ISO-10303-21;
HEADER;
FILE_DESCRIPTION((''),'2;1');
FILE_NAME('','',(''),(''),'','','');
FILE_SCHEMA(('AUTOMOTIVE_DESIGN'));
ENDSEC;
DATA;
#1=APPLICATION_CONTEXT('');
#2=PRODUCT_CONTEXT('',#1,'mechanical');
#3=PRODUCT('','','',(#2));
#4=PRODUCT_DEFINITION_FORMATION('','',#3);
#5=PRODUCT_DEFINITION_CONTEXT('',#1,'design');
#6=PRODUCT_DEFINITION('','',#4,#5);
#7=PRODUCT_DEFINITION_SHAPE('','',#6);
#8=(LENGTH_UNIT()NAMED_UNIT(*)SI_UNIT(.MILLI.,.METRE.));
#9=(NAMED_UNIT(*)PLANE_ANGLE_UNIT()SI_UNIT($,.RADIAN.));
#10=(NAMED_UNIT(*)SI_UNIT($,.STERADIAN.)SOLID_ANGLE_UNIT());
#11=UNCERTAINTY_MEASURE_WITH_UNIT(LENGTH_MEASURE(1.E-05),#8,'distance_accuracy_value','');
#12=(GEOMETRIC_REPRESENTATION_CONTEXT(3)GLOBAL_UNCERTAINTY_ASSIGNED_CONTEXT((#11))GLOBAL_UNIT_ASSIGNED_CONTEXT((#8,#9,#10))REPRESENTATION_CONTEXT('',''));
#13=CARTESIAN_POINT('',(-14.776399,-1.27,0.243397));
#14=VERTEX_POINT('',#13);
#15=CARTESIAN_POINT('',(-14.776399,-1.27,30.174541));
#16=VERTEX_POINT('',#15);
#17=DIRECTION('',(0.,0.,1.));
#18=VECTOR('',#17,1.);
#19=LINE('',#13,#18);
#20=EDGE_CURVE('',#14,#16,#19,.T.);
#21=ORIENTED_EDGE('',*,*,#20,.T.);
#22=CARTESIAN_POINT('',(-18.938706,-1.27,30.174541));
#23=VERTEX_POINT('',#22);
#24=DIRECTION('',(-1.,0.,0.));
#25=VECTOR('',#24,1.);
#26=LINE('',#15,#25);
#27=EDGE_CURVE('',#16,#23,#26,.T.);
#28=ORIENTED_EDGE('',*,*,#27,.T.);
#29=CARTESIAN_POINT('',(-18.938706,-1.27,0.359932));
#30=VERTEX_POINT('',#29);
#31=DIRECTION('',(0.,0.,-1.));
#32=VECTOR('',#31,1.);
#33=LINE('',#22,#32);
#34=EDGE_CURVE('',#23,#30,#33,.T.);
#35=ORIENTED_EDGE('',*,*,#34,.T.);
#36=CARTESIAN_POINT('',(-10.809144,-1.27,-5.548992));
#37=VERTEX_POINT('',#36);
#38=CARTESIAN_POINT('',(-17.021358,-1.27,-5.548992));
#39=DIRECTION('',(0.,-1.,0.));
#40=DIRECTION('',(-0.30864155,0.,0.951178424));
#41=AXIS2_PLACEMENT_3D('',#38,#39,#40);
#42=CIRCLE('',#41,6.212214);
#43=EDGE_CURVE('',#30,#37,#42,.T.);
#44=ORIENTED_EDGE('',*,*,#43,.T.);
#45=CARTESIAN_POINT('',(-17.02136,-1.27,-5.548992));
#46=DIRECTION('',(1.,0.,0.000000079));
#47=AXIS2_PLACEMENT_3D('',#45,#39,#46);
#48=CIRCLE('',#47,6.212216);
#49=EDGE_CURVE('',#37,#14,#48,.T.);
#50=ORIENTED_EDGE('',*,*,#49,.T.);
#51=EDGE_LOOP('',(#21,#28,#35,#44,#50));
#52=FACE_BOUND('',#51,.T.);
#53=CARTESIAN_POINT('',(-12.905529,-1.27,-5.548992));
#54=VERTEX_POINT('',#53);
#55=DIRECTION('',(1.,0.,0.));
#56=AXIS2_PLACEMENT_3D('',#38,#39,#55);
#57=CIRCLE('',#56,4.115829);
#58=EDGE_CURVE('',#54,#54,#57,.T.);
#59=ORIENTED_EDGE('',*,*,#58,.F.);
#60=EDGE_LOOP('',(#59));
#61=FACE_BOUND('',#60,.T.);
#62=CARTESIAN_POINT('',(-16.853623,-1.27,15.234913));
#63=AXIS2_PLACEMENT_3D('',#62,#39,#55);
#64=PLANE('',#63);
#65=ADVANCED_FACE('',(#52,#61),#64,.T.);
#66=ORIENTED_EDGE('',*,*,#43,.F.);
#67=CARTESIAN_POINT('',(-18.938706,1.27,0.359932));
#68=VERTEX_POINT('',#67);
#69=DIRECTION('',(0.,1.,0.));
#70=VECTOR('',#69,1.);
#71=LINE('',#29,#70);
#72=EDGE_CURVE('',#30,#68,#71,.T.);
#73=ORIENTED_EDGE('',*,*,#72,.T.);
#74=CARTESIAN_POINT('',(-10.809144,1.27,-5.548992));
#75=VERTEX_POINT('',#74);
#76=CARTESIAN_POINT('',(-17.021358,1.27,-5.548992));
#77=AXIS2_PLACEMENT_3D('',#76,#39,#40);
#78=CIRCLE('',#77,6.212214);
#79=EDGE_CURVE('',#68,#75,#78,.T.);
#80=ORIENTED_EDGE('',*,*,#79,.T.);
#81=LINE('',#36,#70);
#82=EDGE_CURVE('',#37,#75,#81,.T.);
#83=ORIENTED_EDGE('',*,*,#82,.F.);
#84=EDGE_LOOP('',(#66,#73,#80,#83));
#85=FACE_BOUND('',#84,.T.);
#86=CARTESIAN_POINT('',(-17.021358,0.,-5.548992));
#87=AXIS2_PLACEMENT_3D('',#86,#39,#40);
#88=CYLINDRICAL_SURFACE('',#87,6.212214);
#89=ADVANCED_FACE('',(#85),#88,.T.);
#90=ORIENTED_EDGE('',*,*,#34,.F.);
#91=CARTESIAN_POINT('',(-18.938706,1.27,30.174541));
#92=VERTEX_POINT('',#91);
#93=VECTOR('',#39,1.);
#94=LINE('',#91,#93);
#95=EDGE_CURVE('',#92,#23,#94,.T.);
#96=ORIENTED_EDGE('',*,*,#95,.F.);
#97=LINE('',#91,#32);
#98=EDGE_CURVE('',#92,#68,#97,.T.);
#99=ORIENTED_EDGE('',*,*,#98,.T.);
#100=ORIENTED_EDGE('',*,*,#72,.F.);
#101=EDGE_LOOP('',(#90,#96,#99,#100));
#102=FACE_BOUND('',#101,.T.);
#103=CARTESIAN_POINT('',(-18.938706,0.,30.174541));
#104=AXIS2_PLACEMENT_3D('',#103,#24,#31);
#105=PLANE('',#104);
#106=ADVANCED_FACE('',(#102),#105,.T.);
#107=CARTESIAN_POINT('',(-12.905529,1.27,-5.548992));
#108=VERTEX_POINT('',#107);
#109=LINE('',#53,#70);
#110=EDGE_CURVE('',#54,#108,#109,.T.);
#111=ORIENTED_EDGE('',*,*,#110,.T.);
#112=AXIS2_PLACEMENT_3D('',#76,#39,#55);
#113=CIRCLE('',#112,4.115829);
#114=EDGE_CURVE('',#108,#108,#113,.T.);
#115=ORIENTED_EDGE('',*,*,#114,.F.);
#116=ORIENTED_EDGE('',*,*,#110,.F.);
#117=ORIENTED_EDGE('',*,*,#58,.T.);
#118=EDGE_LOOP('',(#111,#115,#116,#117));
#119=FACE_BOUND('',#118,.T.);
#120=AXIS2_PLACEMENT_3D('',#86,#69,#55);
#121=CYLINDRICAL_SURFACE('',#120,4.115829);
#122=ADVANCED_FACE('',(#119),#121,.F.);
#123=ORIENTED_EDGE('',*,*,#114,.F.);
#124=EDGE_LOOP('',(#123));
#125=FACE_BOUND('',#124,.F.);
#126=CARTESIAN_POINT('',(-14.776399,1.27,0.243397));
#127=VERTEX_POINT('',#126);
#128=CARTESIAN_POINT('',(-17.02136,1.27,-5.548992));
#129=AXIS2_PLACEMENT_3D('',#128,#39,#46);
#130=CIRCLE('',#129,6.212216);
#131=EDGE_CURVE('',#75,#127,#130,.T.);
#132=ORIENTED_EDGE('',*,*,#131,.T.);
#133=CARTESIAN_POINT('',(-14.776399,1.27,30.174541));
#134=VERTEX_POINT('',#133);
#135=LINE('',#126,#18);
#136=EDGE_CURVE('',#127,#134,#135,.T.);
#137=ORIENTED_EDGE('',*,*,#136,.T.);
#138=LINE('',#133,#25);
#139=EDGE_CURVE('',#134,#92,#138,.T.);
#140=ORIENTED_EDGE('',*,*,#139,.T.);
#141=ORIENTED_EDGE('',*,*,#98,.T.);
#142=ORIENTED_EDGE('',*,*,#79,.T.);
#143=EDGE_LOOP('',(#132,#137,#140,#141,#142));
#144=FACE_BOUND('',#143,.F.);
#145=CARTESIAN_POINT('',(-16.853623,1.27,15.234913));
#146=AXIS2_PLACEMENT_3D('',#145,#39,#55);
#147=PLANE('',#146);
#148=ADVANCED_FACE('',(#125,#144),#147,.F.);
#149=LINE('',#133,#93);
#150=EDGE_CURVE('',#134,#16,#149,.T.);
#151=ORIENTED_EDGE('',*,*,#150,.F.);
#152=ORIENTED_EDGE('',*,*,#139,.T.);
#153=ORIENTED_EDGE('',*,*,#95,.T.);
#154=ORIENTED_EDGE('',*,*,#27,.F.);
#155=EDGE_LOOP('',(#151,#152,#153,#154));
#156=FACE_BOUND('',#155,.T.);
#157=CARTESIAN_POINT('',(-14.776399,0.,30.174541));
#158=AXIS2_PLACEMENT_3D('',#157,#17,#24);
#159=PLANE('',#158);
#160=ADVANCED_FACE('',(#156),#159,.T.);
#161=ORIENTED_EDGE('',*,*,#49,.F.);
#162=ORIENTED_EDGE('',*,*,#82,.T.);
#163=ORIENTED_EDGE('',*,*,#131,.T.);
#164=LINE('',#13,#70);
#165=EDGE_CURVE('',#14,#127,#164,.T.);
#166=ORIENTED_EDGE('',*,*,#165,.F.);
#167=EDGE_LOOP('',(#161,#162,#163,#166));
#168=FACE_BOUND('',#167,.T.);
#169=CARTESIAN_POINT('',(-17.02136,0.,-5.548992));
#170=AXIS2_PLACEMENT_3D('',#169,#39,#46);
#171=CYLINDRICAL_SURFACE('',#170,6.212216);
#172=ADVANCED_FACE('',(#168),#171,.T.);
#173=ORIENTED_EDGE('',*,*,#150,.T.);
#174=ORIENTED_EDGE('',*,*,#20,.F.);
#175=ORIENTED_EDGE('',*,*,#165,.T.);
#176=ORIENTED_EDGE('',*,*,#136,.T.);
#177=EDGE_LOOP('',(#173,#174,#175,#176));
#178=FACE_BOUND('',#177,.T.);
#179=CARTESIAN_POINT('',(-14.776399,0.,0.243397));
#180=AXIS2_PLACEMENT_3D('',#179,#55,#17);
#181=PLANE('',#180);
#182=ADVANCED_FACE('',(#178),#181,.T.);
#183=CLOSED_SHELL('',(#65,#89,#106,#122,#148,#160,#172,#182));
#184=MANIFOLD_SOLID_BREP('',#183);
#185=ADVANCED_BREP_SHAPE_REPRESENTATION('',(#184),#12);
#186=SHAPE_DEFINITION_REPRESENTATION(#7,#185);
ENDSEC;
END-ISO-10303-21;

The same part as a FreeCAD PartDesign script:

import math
import FreeCAD as App
import Part
import Sketcher
from FreeCAD import Vector
Q = App.Units.Quantity

doc = App.newDocument("Part")
body = doc.addObject("PartDesign::Body", "Body")

# Sketch on XZ plane
sketch1 = body.newObject("Sketcher::SketchObject", "Sketch")
sketch1.AttachmentSupport = (doc.getObject("XZ_Plane"), [""])
sketch1.MapMode = "FlatFace"
sketch1.addGeometry(Part.LineSegment(Vector(-14.8, 0.2, 0), Vector(-14.8, 30.2, 0)), False)
sketch1.addGeometry(Part.LineSegment(Vector(-14.8, 30.2, 0), Vector(-18.9, 30.2, 0)), False)
sketch1.addGeometry(Part.LineSegment(Vector(-18.9, 30.2, 0), Vector(-18.9, 0.4, 0)), False)
sketch1.addGeometry(Part.ArcOfCircle(Part.Circle(Vector(-17, -5.5, 0), Vector(0, 0, 1), 6.2), math.radians(108), math.radians(360)), False)
sketch1.addGeometry(Part.ArcOfCircle(Part.Circle(Vector(-17, -5.5, 0), Vector(0, 0, 1), 6.2), math.radians(0), math.radians(69)), False)
sketch1.addGeometry(Part.Circle(Vector(-17, -5.5, 0), Vector(0, 0, 1), 4.1), False)
sketch1.addConstraint(Sketcher.Constraint("Coincident", 0, 2, 1, 1))
sketch1.addConstraint(Sketcher.Constraint("Coincident", 1, 2, 2, 1))
sketch1.addConstraint(Sketcher.Constraint("Coincident", 2, 2, 3, 1))
sketch1.addConstraint(Sketcher.Constraint("Tangent", 3, 2, 4, 1))
sketch1.addConstraint(Sketcher.Constraint("Coincident", 4, 2, 0, 1))
sketch1.addConstraint(Sketcher.Constraint("Vertical", 0))
sketch1.addConstraint(Sketcher.Constraint("Horizontal", 1))
sketch1.addConstraint(Sketcher.Constraint("Vertical", 2))
sketch1.addConstraint(Sketcher.Constraint("Coincident", 5, 3, 3, 3))
sketch1.addConstraint(Sketcher.Constraint("Equal", 3, 4))
sketch1.addConstraint(Sketcher.Constraint("Horizontal", 5, 3, 3, 2))
sketch1.addConstraint(Sketcher.Constraint("Diameter", 5, 8.231658))
sketch1.addConstraint(Sketcher.Constraint("Radius", 3, 6.212214))
sketch1.addConstraint(Sketcher.Constraint("DistanceY", 2, 2, 2, 1, 29.814609))
sketch1.addConstraint(Sketcher.Constraint("DistanceX", 0, 2, -1, 1, 14.776399))
sketch1.addConstraint(Sketcher.Constraint("DistanceX", 1, 2, 1, 1, 4.162307))
sketch1.addConstraint(Sketcher.Constraint("DistanceY", 0, 1, 0, 2, 29.931144))
sketch1.addConstraint(Sketcher.Constraint("DistanceY", -1, 1, 0, 2, 30.174541))
pad1 = body.newObject("PartDesign::Pad", "Pad")
pad1.Profile = sketch1
pad1.Length = Q("0.1 in")
pad1.Midplane = True

doc.recompute()
